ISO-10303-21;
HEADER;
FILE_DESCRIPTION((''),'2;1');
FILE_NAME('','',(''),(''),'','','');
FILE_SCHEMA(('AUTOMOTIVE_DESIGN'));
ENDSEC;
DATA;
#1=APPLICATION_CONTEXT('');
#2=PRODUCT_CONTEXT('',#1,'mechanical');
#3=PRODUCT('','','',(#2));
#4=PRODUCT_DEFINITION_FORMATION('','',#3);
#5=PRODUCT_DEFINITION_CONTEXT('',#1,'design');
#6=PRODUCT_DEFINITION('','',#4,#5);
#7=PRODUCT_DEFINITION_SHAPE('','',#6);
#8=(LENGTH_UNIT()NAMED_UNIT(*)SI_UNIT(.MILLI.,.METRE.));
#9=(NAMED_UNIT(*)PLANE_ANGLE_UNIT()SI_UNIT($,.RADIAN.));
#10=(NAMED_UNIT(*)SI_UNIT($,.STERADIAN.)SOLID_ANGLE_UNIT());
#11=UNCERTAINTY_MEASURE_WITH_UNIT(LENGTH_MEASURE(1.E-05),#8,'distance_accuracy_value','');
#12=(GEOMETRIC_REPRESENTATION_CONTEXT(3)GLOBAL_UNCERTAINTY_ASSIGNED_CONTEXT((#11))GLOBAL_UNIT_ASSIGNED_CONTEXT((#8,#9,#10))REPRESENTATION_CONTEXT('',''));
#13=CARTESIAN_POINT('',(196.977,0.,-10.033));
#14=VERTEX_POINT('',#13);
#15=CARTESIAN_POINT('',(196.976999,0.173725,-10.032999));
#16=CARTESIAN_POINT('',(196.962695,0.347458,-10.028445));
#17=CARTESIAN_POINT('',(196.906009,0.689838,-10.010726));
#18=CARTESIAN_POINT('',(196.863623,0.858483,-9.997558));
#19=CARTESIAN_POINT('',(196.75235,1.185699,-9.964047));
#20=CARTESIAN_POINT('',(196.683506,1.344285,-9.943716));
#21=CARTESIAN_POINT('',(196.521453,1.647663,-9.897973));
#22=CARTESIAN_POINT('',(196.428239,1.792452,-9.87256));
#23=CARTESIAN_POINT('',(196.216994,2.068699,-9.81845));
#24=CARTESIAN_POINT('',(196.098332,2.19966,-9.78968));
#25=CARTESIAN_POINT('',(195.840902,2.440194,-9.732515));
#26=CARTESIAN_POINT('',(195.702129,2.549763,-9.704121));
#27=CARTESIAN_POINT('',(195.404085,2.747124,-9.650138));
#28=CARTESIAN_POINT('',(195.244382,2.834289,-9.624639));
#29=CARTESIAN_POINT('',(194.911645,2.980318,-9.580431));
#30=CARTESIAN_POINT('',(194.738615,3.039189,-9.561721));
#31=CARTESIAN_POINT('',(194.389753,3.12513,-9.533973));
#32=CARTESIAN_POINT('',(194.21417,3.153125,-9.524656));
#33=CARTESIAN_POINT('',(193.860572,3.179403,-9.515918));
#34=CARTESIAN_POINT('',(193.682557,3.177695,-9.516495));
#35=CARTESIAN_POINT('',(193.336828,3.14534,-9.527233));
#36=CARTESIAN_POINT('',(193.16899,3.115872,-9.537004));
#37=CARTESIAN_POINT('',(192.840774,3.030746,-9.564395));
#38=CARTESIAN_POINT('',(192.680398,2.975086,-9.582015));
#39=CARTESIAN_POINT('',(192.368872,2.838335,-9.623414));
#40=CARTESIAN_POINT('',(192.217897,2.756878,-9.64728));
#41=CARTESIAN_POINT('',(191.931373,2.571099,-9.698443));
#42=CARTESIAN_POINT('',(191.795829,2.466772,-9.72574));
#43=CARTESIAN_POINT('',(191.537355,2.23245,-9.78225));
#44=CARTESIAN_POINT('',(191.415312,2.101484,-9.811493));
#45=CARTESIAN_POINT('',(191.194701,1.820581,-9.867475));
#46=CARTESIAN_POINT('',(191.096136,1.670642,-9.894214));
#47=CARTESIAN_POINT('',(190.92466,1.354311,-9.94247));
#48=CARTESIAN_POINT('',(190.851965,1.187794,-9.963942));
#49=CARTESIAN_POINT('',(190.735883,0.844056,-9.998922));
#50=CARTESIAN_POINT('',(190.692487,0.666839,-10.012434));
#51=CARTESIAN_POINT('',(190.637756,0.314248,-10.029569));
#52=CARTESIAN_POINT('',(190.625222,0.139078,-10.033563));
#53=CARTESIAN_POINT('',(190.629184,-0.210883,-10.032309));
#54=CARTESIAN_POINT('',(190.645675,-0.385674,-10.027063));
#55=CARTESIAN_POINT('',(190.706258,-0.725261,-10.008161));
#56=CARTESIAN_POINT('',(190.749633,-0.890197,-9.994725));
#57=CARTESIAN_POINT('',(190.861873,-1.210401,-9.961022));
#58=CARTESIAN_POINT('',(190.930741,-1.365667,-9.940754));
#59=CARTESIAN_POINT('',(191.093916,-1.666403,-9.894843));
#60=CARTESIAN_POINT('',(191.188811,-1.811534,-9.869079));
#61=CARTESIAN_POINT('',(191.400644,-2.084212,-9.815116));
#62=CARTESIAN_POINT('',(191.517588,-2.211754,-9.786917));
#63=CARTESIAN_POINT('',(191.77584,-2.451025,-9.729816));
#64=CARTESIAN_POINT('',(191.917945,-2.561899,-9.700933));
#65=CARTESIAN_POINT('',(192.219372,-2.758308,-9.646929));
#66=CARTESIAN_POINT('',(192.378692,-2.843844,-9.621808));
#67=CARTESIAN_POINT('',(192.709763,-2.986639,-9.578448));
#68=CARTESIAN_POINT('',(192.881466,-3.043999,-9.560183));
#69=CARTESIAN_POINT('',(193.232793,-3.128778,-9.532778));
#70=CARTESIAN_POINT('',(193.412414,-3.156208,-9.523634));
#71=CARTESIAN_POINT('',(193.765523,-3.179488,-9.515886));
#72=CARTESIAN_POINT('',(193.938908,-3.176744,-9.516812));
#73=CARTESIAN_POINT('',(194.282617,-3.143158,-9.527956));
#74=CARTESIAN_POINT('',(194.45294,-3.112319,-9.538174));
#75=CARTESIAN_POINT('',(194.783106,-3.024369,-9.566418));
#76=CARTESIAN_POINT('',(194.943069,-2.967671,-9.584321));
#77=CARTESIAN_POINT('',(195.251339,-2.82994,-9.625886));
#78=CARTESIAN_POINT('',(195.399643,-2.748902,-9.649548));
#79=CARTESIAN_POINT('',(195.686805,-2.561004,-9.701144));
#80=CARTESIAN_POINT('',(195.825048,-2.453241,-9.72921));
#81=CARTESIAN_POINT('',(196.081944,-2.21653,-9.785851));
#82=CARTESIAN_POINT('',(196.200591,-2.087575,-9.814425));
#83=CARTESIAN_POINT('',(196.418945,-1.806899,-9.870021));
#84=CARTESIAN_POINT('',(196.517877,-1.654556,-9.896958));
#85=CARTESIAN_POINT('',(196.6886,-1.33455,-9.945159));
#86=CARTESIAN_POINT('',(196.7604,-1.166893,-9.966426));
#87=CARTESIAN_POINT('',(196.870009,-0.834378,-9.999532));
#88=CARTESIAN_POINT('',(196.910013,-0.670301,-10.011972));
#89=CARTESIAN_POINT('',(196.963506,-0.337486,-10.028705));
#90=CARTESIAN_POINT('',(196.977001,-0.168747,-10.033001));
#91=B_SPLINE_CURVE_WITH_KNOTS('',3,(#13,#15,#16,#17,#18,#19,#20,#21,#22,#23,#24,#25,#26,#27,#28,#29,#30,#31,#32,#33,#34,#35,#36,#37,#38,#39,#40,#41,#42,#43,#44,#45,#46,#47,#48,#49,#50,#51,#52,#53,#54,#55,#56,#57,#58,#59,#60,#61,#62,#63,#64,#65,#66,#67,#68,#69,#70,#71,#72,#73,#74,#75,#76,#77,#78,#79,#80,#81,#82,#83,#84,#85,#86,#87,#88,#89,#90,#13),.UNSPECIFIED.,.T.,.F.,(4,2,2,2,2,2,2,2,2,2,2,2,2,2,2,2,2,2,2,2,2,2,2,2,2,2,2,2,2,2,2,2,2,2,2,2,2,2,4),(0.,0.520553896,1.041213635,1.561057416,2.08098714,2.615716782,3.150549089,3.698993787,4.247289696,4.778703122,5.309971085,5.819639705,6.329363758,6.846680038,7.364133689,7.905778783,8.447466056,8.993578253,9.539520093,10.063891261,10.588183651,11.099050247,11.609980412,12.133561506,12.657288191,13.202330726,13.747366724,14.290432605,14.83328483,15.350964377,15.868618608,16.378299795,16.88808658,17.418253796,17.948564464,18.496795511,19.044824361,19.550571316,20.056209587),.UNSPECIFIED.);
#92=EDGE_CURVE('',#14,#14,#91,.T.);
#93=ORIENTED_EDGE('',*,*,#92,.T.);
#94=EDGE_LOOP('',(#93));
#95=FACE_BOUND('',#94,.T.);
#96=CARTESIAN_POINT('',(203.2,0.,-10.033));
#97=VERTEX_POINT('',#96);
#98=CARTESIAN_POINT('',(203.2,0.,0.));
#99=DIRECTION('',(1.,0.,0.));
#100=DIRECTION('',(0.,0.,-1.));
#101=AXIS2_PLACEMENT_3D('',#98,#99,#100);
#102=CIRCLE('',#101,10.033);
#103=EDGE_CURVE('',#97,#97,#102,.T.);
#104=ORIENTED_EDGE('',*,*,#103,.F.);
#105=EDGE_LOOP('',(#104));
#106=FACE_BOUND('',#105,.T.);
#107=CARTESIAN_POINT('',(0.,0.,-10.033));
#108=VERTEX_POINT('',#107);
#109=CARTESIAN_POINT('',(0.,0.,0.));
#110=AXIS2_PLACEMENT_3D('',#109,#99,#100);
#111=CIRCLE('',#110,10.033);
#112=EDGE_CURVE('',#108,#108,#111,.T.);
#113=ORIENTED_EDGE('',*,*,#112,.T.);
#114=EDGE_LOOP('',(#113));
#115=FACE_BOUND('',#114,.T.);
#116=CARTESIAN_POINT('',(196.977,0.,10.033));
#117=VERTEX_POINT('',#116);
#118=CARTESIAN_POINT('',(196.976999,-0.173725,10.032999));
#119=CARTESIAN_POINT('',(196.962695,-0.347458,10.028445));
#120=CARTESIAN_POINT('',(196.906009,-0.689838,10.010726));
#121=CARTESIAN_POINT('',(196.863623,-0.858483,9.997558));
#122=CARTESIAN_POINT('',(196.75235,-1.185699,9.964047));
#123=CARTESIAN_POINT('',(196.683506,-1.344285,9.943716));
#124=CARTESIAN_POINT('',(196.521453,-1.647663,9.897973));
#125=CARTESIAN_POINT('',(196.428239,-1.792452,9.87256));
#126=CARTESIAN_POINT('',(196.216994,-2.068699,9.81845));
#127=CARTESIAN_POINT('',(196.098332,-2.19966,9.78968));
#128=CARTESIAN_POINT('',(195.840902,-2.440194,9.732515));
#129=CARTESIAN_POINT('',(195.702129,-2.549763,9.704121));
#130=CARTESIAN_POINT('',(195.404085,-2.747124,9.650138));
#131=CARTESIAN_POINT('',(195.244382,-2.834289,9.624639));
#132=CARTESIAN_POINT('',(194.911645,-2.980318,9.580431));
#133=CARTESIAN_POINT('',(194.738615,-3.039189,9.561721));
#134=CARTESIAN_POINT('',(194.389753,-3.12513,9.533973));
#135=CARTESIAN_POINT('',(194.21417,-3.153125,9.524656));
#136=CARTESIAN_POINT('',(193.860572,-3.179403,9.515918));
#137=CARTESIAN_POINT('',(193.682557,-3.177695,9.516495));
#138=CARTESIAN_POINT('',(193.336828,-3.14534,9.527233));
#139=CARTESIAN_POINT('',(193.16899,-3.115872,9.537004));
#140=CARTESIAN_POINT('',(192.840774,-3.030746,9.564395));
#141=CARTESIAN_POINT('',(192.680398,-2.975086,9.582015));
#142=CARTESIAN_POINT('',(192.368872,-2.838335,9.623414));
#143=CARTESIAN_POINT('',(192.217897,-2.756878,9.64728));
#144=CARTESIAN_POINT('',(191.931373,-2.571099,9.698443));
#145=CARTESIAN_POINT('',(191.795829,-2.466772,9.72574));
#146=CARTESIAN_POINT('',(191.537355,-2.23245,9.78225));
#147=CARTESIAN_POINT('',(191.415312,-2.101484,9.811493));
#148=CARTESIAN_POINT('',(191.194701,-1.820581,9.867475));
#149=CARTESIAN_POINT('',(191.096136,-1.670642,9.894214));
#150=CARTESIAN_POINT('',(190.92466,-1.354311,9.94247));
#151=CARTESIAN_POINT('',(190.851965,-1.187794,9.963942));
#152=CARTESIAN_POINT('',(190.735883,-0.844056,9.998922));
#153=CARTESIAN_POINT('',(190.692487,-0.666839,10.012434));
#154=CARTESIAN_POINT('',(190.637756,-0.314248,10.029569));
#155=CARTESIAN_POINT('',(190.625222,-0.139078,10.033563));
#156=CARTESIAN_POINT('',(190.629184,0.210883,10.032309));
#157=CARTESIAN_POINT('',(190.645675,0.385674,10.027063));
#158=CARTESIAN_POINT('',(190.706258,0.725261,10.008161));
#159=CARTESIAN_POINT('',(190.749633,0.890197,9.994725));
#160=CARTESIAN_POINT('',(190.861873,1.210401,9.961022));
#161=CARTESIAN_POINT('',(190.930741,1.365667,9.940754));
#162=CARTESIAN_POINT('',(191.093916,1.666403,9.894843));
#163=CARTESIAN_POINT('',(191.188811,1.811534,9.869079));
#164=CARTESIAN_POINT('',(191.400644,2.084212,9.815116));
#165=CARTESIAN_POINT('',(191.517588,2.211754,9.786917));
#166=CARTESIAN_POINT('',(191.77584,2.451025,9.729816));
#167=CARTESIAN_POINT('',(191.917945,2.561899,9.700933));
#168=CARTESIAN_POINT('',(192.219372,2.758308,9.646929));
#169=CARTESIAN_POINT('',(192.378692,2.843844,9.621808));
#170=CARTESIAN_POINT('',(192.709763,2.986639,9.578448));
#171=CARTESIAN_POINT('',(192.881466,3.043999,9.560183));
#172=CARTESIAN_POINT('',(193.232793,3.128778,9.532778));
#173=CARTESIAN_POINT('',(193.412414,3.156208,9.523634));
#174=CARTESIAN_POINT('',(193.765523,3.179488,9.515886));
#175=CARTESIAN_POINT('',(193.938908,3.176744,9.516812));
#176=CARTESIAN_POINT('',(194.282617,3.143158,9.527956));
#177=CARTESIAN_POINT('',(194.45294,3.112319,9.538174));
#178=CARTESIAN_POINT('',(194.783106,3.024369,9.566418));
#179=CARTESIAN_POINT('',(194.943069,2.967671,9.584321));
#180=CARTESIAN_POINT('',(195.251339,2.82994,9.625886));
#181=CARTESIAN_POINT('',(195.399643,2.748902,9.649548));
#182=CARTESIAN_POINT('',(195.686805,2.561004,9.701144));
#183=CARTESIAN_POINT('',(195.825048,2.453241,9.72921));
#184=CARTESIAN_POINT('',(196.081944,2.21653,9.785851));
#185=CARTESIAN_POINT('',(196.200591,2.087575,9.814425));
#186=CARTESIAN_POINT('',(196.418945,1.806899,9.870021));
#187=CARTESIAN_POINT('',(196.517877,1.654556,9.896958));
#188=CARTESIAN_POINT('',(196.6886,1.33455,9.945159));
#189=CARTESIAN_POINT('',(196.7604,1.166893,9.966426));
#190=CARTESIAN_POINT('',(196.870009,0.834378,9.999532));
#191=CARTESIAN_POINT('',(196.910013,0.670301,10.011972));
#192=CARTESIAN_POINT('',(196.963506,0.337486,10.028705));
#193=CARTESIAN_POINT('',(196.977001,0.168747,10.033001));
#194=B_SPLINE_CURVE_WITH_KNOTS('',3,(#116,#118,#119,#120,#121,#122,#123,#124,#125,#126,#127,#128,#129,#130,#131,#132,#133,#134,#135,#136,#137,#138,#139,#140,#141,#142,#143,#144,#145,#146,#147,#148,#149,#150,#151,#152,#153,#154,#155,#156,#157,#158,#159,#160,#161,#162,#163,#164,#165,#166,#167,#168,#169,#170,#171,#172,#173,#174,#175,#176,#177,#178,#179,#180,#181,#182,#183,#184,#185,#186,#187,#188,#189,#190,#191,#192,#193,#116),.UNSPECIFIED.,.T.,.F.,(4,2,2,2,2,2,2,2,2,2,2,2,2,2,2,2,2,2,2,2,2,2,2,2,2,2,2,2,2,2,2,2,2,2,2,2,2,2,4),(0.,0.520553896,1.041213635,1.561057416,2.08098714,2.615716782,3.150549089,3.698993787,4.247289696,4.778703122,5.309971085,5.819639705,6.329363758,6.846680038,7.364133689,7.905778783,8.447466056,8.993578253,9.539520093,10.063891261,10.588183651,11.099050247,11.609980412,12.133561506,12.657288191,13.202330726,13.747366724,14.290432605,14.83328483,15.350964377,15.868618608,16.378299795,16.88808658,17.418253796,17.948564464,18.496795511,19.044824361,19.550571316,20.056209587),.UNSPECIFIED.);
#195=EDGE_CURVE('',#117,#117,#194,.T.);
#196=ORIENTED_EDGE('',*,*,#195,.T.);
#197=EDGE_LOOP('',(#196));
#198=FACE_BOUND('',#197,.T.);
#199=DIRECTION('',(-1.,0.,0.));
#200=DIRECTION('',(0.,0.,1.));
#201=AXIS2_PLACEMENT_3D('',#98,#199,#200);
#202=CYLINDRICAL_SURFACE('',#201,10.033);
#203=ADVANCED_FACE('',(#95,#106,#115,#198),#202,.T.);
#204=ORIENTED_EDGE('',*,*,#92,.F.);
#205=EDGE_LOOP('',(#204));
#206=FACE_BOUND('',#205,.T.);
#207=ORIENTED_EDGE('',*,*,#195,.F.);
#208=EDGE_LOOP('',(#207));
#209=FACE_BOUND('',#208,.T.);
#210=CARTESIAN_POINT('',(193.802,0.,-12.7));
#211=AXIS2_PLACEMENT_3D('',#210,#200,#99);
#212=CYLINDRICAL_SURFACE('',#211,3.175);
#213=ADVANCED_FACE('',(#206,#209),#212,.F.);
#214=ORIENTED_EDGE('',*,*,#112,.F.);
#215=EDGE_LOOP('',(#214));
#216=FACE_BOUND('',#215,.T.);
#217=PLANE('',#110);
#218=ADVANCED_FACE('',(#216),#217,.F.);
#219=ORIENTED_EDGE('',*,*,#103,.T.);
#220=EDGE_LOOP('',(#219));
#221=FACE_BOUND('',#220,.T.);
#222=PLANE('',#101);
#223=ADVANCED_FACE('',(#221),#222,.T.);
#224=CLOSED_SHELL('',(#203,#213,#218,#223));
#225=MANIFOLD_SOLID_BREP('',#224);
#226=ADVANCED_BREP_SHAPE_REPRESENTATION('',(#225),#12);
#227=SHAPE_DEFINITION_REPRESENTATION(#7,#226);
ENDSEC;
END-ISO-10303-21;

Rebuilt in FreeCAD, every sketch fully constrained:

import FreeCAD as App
import Part
import Sketcher

V = App.Vector
Q = App.Units.Quantity

doc = App.newDocument("Part")
body = doc.addObject("PartDesign::Body", "Body")

# Sketch on YZ plane
sketch1 = body.newObject("Sketcher::SketchObject", "Sketch")
sketch1.AttachmentSupport = (doc.getObject("YZ_Plane"), [""])
sketch1.MapMode = "FlatFace"
sketch1.addGeometry(Part.Circle(V(0, 0, 0), V(0, 0, 1), 10.033), False)
sketch1.addConstraint([
    Sketcher.Constraint("Coincident", 0, 3, -1, 1),
    Sketcher.Constraint("Diameter", 0, Q("0.79 in")),
])
pad1 = body.newObject("PartDesign::Pad", "Pad")
pad1.Profile = sketch1
pad1.Length = Q("8 in")

# Sketch on XY plane
sketch2 = body.newObject("Sketcher::SketchObject", "Sketch001")
sketch2.AttachmentSupport = (doc.getObject("XY_Plane"), [""])
sketch2.MapMode = "FlatFace"
sketch2.addGeometry(Part.Circle(V(193.802, 0, 0), V(0, 0, 1), 3.175), False)
sketch2.addConstraint([
    Sketcher.Constraint("PointOnObject", 0, 3, -1),
    Sketcher.Constraint("Diameter", 0, Q("0.25 in")),
    Sketcher.Constraint("DistanceX", -1, 1, 0, 3, Q("7.63 in")),
])
pocket1 = body.newObject("PartDesign::Pocket", "Pocket")
pocket1.Profile = sketch2
pocket1.Length = Q("1 in")
pocket1.Midplane = True

doc.recompute()
